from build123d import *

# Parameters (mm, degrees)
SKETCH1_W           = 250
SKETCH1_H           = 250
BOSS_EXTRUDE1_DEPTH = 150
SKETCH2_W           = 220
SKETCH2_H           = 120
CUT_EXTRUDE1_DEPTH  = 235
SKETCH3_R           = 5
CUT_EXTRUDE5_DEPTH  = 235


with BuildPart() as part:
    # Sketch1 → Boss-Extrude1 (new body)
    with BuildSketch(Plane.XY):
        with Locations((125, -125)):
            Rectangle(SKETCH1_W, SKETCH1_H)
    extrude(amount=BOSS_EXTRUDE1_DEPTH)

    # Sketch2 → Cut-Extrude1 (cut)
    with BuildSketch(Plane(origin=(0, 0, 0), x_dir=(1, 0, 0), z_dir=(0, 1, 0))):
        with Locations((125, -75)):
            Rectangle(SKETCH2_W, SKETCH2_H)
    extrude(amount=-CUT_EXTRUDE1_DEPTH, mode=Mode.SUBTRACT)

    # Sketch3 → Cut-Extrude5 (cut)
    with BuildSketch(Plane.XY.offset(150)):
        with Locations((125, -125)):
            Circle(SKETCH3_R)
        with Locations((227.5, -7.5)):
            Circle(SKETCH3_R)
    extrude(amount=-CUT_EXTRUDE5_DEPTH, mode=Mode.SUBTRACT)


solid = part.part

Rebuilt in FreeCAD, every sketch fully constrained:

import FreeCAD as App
import Part
import Sketcher

doc = App.newDocument("Part")
body = doc.addObject("PartDesign::Body", "Body")

sketch1 = body.newObject("Sketcher::SketchObject", "Sketch")
sketch1.AttachmentSupport = (doc.getObject("XY_Plane"), [""])
sketch1.MapMode = "FlatFace"
sketch1.addGeometry([
    Part.LineSegment(App.Vector(0, 0, 0), App.Vector(0, -250, 0)),
    Part.LineSegment(App.Vector(0, -250, 0), App.Vector(250, -250, 0)),
    Part.LineSegment(App.Vector(250, -250, 0), App.Vector(250, 0, 0)),
    Part.LineSegment(App.Vector(250, 0, 0), App.Vector(0, 0, 0)),
], False)
sketch1.addConstraint([
    Sketcher.Constraint("Coincident", 0, 2, 1, 1),
    Sketcher.Constraint("Coincident", 1, 2, 2, 1),
    Sketcher.Constraint("Coincident", 2, 2, 3, 1),
    Sketcher.Constraint("Coincident", 3, 2, 0, 1),
    Sketcher.Constraint("Vertical", 0),
    Sketcher.Constraint("Horizontal", 1),
    Sketcher.Constraint("Vertical", 2),
    Sketcher.Constraint("Horizontal", 3),
    Sketcher.Constraint("Coincident", 3, 2, -1, 1),
    Sketcher.Constraint("Equal", 3, 0),
    Sketcher.Constraint("DistanceX", 1, 1, 1, 2, 250.0),
])
pad1 = body.newObject("PartDesign::Pad", "Pad")
pad1.Profile = sketch1
pad1.Length = 150

sketch2 = body.newObject("Sketcher::SketchObject", "Sketch001")
sketch2.AttachmentSupport = (doc.getObject("XZ_Plane"), [""])
sketch2.MapMode = "FlatFace"
sketch2.addGeometry([
    Part.LineSegment(App.Vector(15, 15, 0), App.Vector(15, 135, 0)),
    Part.LineSegment(App.Vector(15, 135, 0), App.Vector(235, 135, 0)),
    Part.LineSegment(App.Vector(235, 135, 0), App.Vector(235, 15, 0)),
    Part.LineSegment(App.Vector(235, 15, 0), App.Vector(15, 15, 0)),
], False)
sketch2.addConstraint([
    Sketcher.Constraint("Coincident", 0, 2, 1, 1),
    Sketcher.Constraint("Coincident", 1, 2, 2, 1),
    Sketcher.Constraint("Coincident", 2, 2, 3, 1),
    Sketcher.Constraint("Coincident", 3, 2, 0, 1),
    Sketcher.Constraint("Vertical", 0),
    Sketcher.Constraint("Horizontal", 1),
    Sketcher.Constraint("Vertical", 2),
    Sketcher.Constraint("Horizontal", 3),
    Sketcher.Constraint("DistanceX", 1, 1, 1, 2, 220.0),
    Sketcher.Constraint("DistanceY", 0, 1, 0, 2, 120.0),
    Sketcher.Constraint("DistanceX", -1, 1, 0, 2, 15.0),
    Sketcher.Constraint("DistanceY", -1, 1, 0, 2, 135.0),
])
pocket1 = body.newObject("PartDesign::Pocket", "Pocket")
pocket1.Profile = sketch2
pocket1.Length = 235
pocket1.Reversed = True

sketch3 = body.newObject("Sketcher::SketchObject", "Sketch002")
sketch3.AttachmentSupport = (doc.getObject("XY_Plane"), [""])
sketch3.MapMode = "FlatFace"
sketch3.AttachmentOffset = App.Placement(App.Vector(0, 0, 150), App.Rotation())
sketch3.addGeometry([
    Part.Circle(App.Vector(125, -125, 0), App.Vector(0, 0, 1), 5),
    Part.Circle(App.Vector(227.5, -7.5, 0), App.Vector(0, 0, 1), 5),
], False)
sketch3.addConstraint([
    Sketcher.Constraint("Equal", 0, 1),
    Sketcher.Constraint("Diameter", 0, 10.0),
    Sketcher.Constraint("DistanceX", -1, 1, 0, 3, 125.0),
    Sketcher.Constraint("DistanceY", 0, 3, -1, 1, 125.0),
    Sketcher.Constraint("DistanceX", -1, 1, 1, 3, 227.5),
    Sketcher.Constraint("DistanceY", 1, 3, -1, 1, 7.5),
])
pocket2 = body.newObject("PartDesign::Pocket", "Pocket001")
pocket2.Profile = sketch3
pocket2.Length = 235

doc.recompute()
